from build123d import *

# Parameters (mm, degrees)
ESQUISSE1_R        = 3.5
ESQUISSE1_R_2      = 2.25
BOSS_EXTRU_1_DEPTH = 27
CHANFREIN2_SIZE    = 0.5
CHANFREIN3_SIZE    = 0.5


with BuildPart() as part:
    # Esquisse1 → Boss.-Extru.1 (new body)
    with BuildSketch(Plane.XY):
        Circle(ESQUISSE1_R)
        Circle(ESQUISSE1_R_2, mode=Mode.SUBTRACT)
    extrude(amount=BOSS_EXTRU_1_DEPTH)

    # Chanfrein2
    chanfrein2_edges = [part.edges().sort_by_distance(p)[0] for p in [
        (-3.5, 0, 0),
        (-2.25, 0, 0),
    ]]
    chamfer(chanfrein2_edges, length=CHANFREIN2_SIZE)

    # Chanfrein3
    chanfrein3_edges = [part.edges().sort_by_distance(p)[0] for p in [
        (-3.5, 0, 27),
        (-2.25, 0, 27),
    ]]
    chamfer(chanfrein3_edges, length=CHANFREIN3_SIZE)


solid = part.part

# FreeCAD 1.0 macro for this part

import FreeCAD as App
import Part
import Sketcher


def edges_at(feature, points):
    """Names of the edges that pass closest to the given points."""
    edges = feature.Shape.Edges
    near = lambda p: min(range(len(edges)), key=lambda i: edges[i].distToShape(Part.Vertex(*p))[0])
    return sorted({f"Edge{near(p) + 1}" for p in points})

doc = App.newDocument("Part")
params = doc.addObject("Spreadsheet::Sheet", "Params")
for row, (alias, value) in enumerate([
    ("sketch1_diameter", "7 mm"),
    ("sketch1_diameter2", "4.5 mm"),
    ("pad1_length", "27 mm"),
    ("chamfer_size", "0.5 mm"),
    ("chamfer2_size", "0.5 mm"),
], start=1):
    params.set(f"A{row}", alias)
    params.set(f"B{row}", "=" + value)
    params.setAlias(f"B{row}", alias)

body = doc.addObject("PartDesign::Body", "Body")

# Sketch on XY plane
sketch1 = doc.addObject("Sketcher::SketchObject", "Sketch")
body.addObject(sketch1)
sketch1.AttachmentSupport = (doc.XY_Plane, [""])
sketch1.MapMode = "FlatFace"
sketch1.addGeometry([
    Part.Circle(App.Vector(0, 0, 0), App.Vector(0, 0, 1), 3.5),
    Part.Circle(App.Vector(0, 0, 0), App.Vector(0, 0, 1), 2.2),
], False)
sketch1.addConstraint([
    Sketcher.Constraint("Coincident", 0, 3, -1, 1),
    Sketcher.Constraint("Coincident", 1, 3, -1, 1),
    Sketcher.Constraint("Diameter", 0, 7.0),
    Sketcher.Constraint("Diameter", 1, 4.5),
])
sketch1.setExpression("Constraints[2]", "Params.sketch1_diameter")
sketch1.setExpression("Constraints[3]", "Params.sketch1_diameter2")
pad1 = doc.addObject("PartDesign::Pad", "Pad")
body.addObject(pad1)
pad1.Profile = sketch1
pad1.setExpression("Length", "Params.pad1_length")
doc.recompute()

chamfer = doc.addObject("PartDesign::Chamfer", "Chamfer")
body.addObject(chamfer)
chamfer.Base = (pad1, edges_at(pad1, [(-3.5, 0, 0), (-2.25, 0, 0)]))
chamfer.setExpression("Size", "Params.chamfer_size")
doc.recompute()

chamfer2 = doc.addObject("PartDesign::Chamfer", "Chamfer001")
body.addObject(chamfer2)
chamfer2.Base = (chamfer, edges_at(chamfer, [(-3.5, 0, 27), (-2.25, 0, 27)]))
chamfer2.setExpression("Size", "Params.chamfer2_size")

doc.recompute()
